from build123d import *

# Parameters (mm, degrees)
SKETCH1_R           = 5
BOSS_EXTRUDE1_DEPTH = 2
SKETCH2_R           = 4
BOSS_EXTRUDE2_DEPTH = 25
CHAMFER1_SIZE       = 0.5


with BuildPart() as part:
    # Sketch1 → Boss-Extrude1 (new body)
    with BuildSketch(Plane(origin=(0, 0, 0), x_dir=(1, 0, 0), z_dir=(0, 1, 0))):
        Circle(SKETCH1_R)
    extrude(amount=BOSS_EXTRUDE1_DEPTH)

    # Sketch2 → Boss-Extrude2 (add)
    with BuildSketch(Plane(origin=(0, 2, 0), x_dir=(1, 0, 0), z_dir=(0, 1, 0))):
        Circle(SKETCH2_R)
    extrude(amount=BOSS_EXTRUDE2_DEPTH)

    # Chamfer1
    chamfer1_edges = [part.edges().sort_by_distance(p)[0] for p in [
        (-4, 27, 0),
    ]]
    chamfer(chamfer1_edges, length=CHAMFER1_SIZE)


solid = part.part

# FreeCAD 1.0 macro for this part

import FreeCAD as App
import Part
import Sketcher
Q = App.Units.Quantity


def edges_at(feature, points):
    """Names of the edges that pass closest to the given points."""
    edges = feature.Shape.Edges
    near = lambda p: min(range(len(edges)), key=lambda i: edges[i].distToShape(Part.Vertex(*p))[0])
    return sorted({f"Edge{near(p) + 1}" for p in points})

doc = App.newDocument("Part")
body = doc.addObject("PartDesign::Body", "Body")

sketch1 = doc.addObject("Sketcher::SketchObject", "Sketch")
body.addObject(sketch1)
sketch1.AttachmentSupport = (doc.XZ_Plane, [""])
sketch1.MapMode = "FlatFace"
sketch1.addGeometry(Part.Circle(App.Vector(0, 0, 0), App.Vector(0, 0, 1), 5), False)
sketch1.addConstraint(Sketcher.Constraint("Coincident", 0, 3, -1, 1))
sketch1.addConstraint(Sketcher.Constraint("Diameter", 0, Q("10 mm")))
pad1 = doc.addObject("PartDesign::Pad", "Pad")
body.addObject(pad1)
pad1.Profile = sketch1
pad1.Length = 2
pad1.Reversed = True

sketch2 = doc.addObject("Sketcher::SketchObject", "Sketch001")
body.addObject(sketch2)
sketch2.AttachmentSupport = (doc.XZ_Plane, [""])
sketch2.MapMode = "FlatFace"
sketch2.AttachmentOffset = App.Placement(App.Vector(0, 0, -2), App.Rotation())
sketch2.addGeometry(Part.Circle(App.Vector(0, 0, 0), App.Vector(0, 0, 1), 4), False)
sketch2.addConstraint(Sketcher.Constraint("Coincident", 0, 3, -1, 1))
sketch2.addConstraint(Sketcher.Constraint("Diameter", 0, Q("8 mm")))
pad2 = doc.addObject("PartDesign::Pad", "Pad001")
body.addObject(pad2)
pad2.Profile = sketch2
pad2.Length = 25
pad2.Reversed = True
doc.recompute()

chamfer = doc.addObject("PartDesign::Chamfer", "Chamfer")
body.addObject(chamfer)
chamfer.Base = (pad2, edges_at(pad2, [(-4, 27, 0)]))
chamfer.Size = 0.5

doc.recompute()
